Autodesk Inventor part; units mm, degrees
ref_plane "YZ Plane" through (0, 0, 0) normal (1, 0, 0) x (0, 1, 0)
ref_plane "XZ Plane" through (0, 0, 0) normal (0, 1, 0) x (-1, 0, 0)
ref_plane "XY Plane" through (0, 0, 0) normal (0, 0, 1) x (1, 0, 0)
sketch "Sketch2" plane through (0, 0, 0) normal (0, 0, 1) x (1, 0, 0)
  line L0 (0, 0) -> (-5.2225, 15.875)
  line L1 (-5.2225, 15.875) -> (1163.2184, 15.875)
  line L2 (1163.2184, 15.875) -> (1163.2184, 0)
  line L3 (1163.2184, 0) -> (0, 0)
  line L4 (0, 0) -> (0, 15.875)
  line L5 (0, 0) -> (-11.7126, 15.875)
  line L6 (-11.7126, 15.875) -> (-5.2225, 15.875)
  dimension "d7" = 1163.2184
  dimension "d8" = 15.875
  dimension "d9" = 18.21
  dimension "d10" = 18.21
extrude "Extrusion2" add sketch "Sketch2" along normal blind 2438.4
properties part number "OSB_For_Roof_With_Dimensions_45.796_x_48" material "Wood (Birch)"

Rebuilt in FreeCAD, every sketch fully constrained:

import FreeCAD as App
import Part
import Sketcher

V = App.Vector
Q = App.Units.Quantity

doc = App.newDocument("Part")
params = doc.addObject("Spreadsheet::Sheet", "Params")
for row, (alias, value) in enumerate([
    ("sketch1_width", "45.796 in"),
    ("sketch1_height", "0.625 in"),
    ("pad1_length", "96 in"),
], start=1):
    params.set(f"A{row}", alias)
    params.set(f"B{row}", "=" + value)
    params.setAlias(f"B{row}", alias)

body = doc.addObject("PartDesign::Body", "Body")

# Sketch on XY plane
sketch1 = doc.addObject("Sketcher::SketchObject", "Sketch")
body.addObject(sketch1)
sketch1.AttachmentSupport = (doc.XY_Plane, [""])
sketch1.MapMode = "FlatFace"
sketch1.addGeometry([
    Part.LineSegment(V(-12, 16, 0), V(0, 0, 0)),
    Part.LineSegment(V(0, 0, 0), V(1163, 0, 0)),
    Part.LineSegment(V(1163, 0, 0), V(1163, 16, 0)),
    Part.LineSegment(V(1163, 16, 0), V(-12, 16, 0)),
], False)
sketch1.addConstraint([
    Sketcher.Constraint("Coincident", 0, 2, 1, 1),
    Sketcher.Constraint("Coincident", 1, 2, 2, 1),
    Sketcher.Constraint("Coincident", 2, 2, 3, 1),
    Sketcher.Constraint("Coincident", 3, 2, 0, 1),
    Sketcher.Constraint("Horizontal", 1),
    Sketcher.Constraint("Vertical", 2),
    Sketcher.Constraint("Horizontal", 3),
    Sketcher.Constraint("Coincident", 0, 2, -1, 1),
    Sketcher.Constraint("DistanceX", 1, 1, 1, 2, Q("45.796 in")),
    Sketcher.Constraint("DistanceY", 2, 1, 2, 2, Q("0.625 in")),
    Sketcher.Constraint("Angle", 0, Q("-53.58 deg")),
])
sketch1.setExpression("Constraints[8]", "Params.sketch1_width")
sketch1.setExpression("Constraints[9]", "Params.sketch1_height")
pad1 = doc.addObject("PartDesign::Pad", "Pad")
body.addObject(pad1)
pad1.Profile = sketch1
pad1.setExpression("Length", "Params.pad1_length")

doc.recompute()
